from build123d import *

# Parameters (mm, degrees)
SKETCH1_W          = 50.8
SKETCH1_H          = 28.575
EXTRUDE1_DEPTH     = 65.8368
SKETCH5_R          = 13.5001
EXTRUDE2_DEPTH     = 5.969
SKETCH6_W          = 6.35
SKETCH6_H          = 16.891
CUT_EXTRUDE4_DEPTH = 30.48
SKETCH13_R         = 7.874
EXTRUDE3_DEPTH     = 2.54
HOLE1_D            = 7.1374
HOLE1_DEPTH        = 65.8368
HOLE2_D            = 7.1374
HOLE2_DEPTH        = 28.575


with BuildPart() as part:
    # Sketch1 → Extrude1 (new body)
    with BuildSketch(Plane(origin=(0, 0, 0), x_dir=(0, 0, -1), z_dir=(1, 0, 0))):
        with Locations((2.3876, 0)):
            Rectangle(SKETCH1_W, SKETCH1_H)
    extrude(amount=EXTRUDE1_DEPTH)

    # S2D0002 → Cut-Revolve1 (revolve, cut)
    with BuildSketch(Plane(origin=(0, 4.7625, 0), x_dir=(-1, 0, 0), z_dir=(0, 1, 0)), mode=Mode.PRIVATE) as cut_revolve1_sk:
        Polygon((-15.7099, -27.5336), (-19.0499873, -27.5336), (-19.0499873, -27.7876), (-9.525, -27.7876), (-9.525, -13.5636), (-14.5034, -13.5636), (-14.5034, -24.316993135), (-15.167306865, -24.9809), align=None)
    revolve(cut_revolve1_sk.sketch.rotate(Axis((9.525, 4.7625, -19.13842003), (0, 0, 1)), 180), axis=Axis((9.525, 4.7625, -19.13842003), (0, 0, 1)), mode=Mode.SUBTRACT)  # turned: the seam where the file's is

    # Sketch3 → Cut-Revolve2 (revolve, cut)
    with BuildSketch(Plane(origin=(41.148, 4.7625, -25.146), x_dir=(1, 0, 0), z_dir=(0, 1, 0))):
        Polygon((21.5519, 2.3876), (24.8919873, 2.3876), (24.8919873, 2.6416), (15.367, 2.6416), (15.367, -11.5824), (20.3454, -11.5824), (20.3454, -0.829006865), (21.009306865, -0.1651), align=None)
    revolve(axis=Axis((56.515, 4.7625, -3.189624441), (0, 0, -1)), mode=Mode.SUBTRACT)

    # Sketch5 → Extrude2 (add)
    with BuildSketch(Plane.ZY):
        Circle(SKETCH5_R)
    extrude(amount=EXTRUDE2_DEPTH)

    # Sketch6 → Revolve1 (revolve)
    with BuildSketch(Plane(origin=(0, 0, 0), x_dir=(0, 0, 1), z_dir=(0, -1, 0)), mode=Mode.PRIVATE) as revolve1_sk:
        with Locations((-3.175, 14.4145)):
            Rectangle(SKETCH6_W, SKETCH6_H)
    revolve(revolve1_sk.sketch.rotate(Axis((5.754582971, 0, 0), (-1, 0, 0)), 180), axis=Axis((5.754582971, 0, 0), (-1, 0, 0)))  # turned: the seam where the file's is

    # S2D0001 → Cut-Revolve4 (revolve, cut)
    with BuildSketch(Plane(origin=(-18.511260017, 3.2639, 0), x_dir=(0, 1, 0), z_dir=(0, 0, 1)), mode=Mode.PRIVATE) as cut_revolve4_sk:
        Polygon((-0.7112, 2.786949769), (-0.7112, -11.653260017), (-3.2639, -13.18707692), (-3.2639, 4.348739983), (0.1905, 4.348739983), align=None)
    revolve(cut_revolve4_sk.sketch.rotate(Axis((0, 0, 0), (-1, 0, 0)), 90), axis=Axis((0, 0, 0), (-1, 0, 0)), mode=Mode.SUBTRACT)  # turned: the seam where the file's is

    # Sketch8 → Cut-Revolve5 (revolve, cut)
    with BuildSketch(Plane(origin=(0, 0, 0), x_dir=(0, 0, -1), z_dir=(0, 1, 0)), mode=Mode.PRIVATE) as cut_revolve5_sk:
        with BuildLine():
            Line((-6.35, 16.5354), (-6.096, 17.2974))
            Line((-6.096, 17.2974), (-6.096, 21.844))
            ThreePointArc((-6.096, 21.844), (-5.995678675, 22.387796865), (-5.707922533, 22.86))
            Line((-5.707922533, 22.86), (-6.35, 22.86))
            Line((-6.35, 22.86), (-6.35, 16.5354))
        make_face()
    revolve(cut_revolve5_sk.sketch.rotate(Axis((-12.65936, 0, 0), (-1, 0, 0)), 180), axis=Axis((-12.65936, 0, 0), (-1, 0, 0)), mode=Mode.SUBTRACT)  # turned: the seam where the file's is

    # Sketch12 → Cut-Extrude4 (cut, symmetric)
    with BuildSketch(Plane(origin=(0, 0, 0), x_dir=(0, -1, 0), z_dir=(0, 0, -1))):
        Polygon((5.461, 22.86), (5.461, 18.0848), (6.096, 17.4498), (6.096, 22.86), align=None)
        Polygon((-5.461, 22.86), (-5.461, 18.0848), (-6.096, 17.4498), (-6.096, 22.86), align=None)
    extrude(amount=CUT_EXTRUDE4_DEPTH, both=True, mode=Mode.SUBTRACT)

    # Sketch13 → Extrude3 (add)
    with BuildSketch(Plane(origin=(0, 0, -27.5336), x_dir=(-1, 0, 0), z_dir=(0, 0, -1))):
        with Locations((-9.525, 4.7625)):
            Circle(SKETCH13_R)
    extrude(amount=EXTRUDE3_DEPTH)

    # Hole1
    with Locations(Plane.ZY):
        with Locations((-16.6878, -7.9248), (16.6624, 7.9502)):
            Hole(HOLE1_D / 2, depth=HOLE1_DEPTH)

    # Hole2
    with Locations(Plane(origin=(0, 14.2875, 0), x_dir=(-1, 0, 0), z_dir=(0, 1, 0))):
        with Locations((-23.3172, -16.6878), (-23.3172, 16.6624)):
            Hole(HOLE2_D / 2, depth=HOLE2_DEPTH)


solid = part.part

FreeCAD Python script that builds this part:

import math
import FreeCAD as App
import Part
import Sketcher
Q = App.Units.Quantity


def add_polygon(sketch, points):
    """Adds a closed chain of lines whose ends are joined by coincident constraints."""
    first, n = sketch.GeometryCount, len(points)
    for a, b in zip(points, points[1:] + points[:1]):
        sketch.addGeometry(Part.LineSegment(App.Vector(*a, 0), App.Vector(*b, 0)), False)
    for i in range(n):
        sketch.addConstraint(Sketcher.Constraint("Coincident", first + i, 2, first + (i + 1) % n, 1))

doc = App.newDocument("Part")
body = doc.addObject("PartDesign::Body", "Body")

# Sketch on YZ plane
sketch1 = body.newObject("Sketcher::SketchObject", "Sketch")
sketch1.AttachmentSupport = (doc.getObject("YZ_Plane"), [""])
sketch1.MapMode = "FlatFace"
add_polygon(sketch1, [(14.2875, 23.0124), (-14.2875, 23.0124), (-14.2875, -27.7876), (14.2875, -27.7876)])  # lines 0-3
sketch1.addConstraint([
    Sketcher.Constraint("Horizontal", 0),
    Sketcher.Constraint("Vertical", 1),
    Sketcher.Constraint("Horizontal", 2),
    Sketcher.Constraint("Vertical", 3),
    Sketcher.Constraint("DistanceY", 1, 2, 1, 1, Q("2 in")),
    Sketcher.Constraint("DistanceX", 0, 2, 0, 1, Q("1.125 in")),
    Sketcher.Constraint("DistanceX", 0, 2, -1, 1, Q("0.5625 in")),
    Sketcher.Constraint("DistanceY", -1, 1, 0, 2, Q("0.906 in")),
])
pad1 = body.newObject("PartDesign::Pad", "Pad")
pad1.Profile = sketch1
pad1.Length = Q("2.592 in")

# Sketch on XZ plane
sketch2 = body.newObject("Sketcher::SketchObject", "Sketch001")
sketch2.AttachmentSupport = (doc.getObject("XZ_Plane"), [""])
sketch2.MapMode = "FlatFace"
sketch2.AttachmentOffset = App.Placement(App.Vector(0, 0, -0.1875 * 25.4), App.Rotation())
add_polygon(sketch2, [(15.7099, -27.5336), (19.049987, -27.5336), (19.049987, -27.7876), (9.525, -27.7876), (9.525, -13.5636), (14.5034, -13.5636), (14.5034, -24.316993), (15.167307, -24.9809)])  # lines 0-7
sketch2.addGeometry(Part.LineSegment(App.Vector(9.525, -27.7876, 0), App.Vector(9.525, -13.5636, 0)), True)  # axis
sketch2.addConstraint([
    Sketcher.Constraint("Horizontal", 0),
    Sketcher.Constraint("Vertical", 1),
    Sketcher.Constraint("Horizontal", 2),
    Sketcher.Constraint("Vertical", 3),
    Sketcher.Constraint("Horizontal", 4),
    Sketcher.Constraint("Vertical", 5),
    Sketcher.Constraint("Vertical", 8),
    Sketcher.Constraint("Coincident", 8, 1, 2, 2),
    Sketcher.Constraint("Horizontal", 4, 2, 8, 2),
    Sketcher.Constraint("Angle", 6, Q("-45 deg")),
    Sketcher.Constraint("Angle", 7, Q("-78 deg")),
    Sketcher.Constraint("DistanceY", 1, 2, 1, 1, Q("0.01 in")),
    Sketcher.Constraint("DistanceY", 3, 1, 3, 2, Q("0.56 in")),
    Sketcher.Constraint("DistanceX", 4, 1, 4, 2, Q("0.196 in")),
    Sketcher.Constraint("DistanceY", 0, 2, -1, 1, Q("1.084 in")),
    Sketcher.Constraint("DistanceX", -1, 1, 2, 2, Q("0.375 in")),
    Sketcher.Constraint("DistanceY", 6, 2, -1, 1, Q("0.9835 in")),
    Sketcher.Constraint("DistanceX", -1, 1, 7, 2, Q("0.6185 in")),
    Sketcher.Constraint("DistanceX", 0, 1, 0, 2, Q("3.340087 mm")),
])
groove = body.newObject("PartDesign::Groove", "Groove")
groove.Profile = sketch2
groove.ReferenceAxis = (sketch2, ["Axis0"])
groove.Angle = 360

# Sketch on XZ plane
sketch3 = body.newObject("Sketcher::SketchObject", "Sketch002")
sketch3.AttachmentSupport = (doc.getObject("XZ_Plane"), [""])
sketch3.MapMode = "FlatFace"
sketch3.AttachmentOffset = App.Placement(App.Vector(0, 0, -0.1875 * 25.4), App.Rotation())
add_polygon(sketch3, [(62.6999, -27.5336), (66.039987, -27.5336), (66.039987, -27.7876), (56.515, -27.7876), (56.515, -13.5636), (61.4934, -13.5636), (61.4934, -24.316993), (62.157307, -24.9809)])  # lines 0-7
sketch3.addGeometry(Part.LineSegment(App.Vector(56.515, -13.5636, 0), App.Vector(56.515, -27.7876, 0)), True)  # axis
sketch3.addConstraint([
    Sketcher.Constraint("Horizontal", 0),
    Sketcher.Constraint("Vertical", 1),
    Sketcher.Constraint("Horizontal", 2),
    Sketcher.Constraint("Vertical", 3),
    Sketcher.Constraint("Horizontal", 4),
    Sketcher.Constraint("Vertical", 5),
    Sketcher.Constraint("Vertical", 8),
    Sketcher.Constraint("Coincident", 8, 1, 3, 2),
    Sketcher.Constraint("Horizontal", 1, 2, 8, 2),
    Sketcher.Constraint("Angle", 6, Q("-45 deg")),
    Sketcher.Constraint("Angle", 7, Q("-78 deg")),
    Sketcher.Constraint("DistanceY", 1, 2, 1, 1, Q("0.01 in")),
    Sketcher.Constraint("DistanceY", 3, 1, 3, 2, Q("0.56 in")),
    Sketcher.Constraint("DistanceX", 4, 1, 4, 2, Q("0.196 in")),
    Sketcher.Constraint("DistanceY", 0, 2, -1, 1, Q("1.084 in")),
    Sketcher.Constraint("DistanceX", -1, 1, 2, 2, Q("2.225 in")),
    Sketcher.Constraint("DistanceY", 6, 2, -1, 1, Q("0.9835 in")),
    Sketcher.Constraint("DistanceX", -1, 1, 7, 2, Q("2.4685 in")),
    Sketcher.Constraint("DistanceX", 0, 1, 0, 2, Q("3.340087 mm")),
])
groove2 = body.newObject("PartDesign::Groove", "Groove001")
groove2.Profile = sketch3
groove2.ReferenceAxis = (sketch3, ["Axis0"])
groove2.Angle = 360

# Sketch on YZ plane
sketch4 = body.newObject("Sketcher::SketchObject", "Sketch003")
sketch4.AttachmentSupport = (doc.getObject("YZ_Plane"), [""])
sketch4.MapMode = "FlatFace"
sketch4.addGeometry(Part.Circle(App.Vector(0, 0, 0), App.Vector(0, 0, 1), 13.5001), False)
sketch4.addConstraint([
    Sketcher.Constraint("Coincident", 0, 3, -1, 1),
    Sketcher.Constraint("Diameter", 0, Q("1.063 in")),
])
pad2 = body.newObject("PartDesign::Pad", "Pad001")
pad2.Profile = sketch4
pad2.Length = Q("0.235 in")
pad2.Reversed = True

# Sketch on XZ plane
sketch5 = body.newObject("Sketcher::SketchObject", "Sketch004")
sketch5.AttachmentSupport = (doc.getObject("XZ_Plane"), [""])
sketch5.MapMode = "FlatFace"
add_polygon(sketch5, [(-22.86, -6.35), (-5.969, -6.35), (-5.969, 0), (-22.86, 0)])  # lines 0-3
sketch5.addConstraint([
    Sketcher.Constraint("Horizontal", 0),
    Sketcher.Constraint("Vertical", 1),
    Sketcher.Constraint("Horizontal", 2),
    Sketcher.Constraint("Vertical", 3),
    Sketcher.Constraint("PointOnObject", 1, 2, -1),
    Sketcher.Constraint("DistanceY", 1, 1, 1, 2, Q("0.25 in")),
    Sketcher.Constraint("DistanceX", 2, 2, -1, 1, Q("0.9 in")),
    Sketcher.Constraint("DistanceX", 0, 1, 0, 2, Q("0.665 in")),
])
revolution = body.newObject("PartDesign::Revolution", "Revolution")
revolution.Profile = sketch5
revolution.ReferenceAxis = (sketch5, ["H_Axis"])
revolution.Angle = 360

# Sketch on XY plane
sketch6 = body.newObject("Sketcher::SketchObject", "Sketch005")
sketch6.AttachmentSupport = (doc.getObject("XY_Plane"), [""])
sketch6.MapMode = "FlatFace"
add_polygon(sketch6, [(-6.858, 2.5527), (-21.29821, 2.5527), (-22.86, 3.4544), (-22.86, 0), (-5.324183, 0)])  # lines 0-4
sketch6.addConstraint([
    Sketcher.Constraint("Horizontal", 0),
    Sketcher.Constraint("Vertical", 2),
    Sketcher.Constraint("Horizontal", 3),
    Sketcher.Constraint("PointOnObject", 2, 2, -1),
    Sketcher.Constraint("Angle", 1, Q("150 deg")),
    Sketcher.Constraint("Angle", 4, Q("121 deg")),
    Sketcher.Constraint("DistanceX", 1, 2, -1, 1, Q("0.9 in")),
    Sketcher.Constraint("DistanceY", 2, 2, 2, 1, Q("0.136 in")),
    Sketcher.Constraint("DistanceX", 4, 2, -1, 1, Q("0.27 in")),
    Sketcher.Constraint("Distance", 1, Q("0.071 in")),
])
groove3 = body.newObject("PartDesign::Groove", "Groove002")
groove3.Profile = sketch6
groove3.ReferenceAxis = (sketch6, ["H_Axis"])
groove3.Angle = 360

# Sketch on XZ plane
sketch7 = body.newObject("Sketcher::SketchObject", "Sketch006")
sketch7.AttachmentSupport = (doc.getObject("XZ_Plane"), [""])
sketch7.MapMode = "FlatFace"
sketch7.addGeometry([
    Part.LineSegment(App.Vector(-16.5354, 6.35, 0), App.Vector(-17.2974, 6.096, 0)),  # 0
    Part.LineSegment(App.Vector(-17.2974, 6.096, 0), App.Vector(-21.844, 6.096, 0)),  # 1
    Part.ArcOfCircle(Part.Circle(App.Vector(-21.844, 4.572, 0), App.Vector(0, 0, 1), 1.524), math.radians(90), math.radians(131.810315)),  # 2
    Part.LineSegment(App.Vector(-22.86, 5.707923, 0), App.Vector(-22.86, 6.35, 0)),  # 3
    Part.LineSegment(App.Vector(-22.86, 6.35, 0), App.Vector(-16.5354, 6.35, 0)),  # 4
], False)
sketch7.addConstraint([
    Sketcher.Constraint("Coincident", 0, 2, 1, 1),
    Sketcher.Constraint("Tangent", 1, 2, 2, 1),
    Sketcher.Constraint("Coincident", 2, 2, 3, 1),
    Sketcher.Constraint("Coincident", 3, 2, 4, 1),
    Sketcher.Constraint("Coincident", 4, 2, 0, 1),
    Sketcher.Constraint("Horizontal", 1),
    Sketcher.Constraint("Vertical", 3),
    Sketcher.Constraint("Horizontal", 4),
    Sketcher.Constraint("Radius", 2, Q("0.06 in")),
    Sketcher.Constraint("DistanceX", 2, 2, -1, 1, Q("0.9 in")),
    Sketcher.Constraint("DistanceX", 1, 2, 1, 1, Q("0.179 in")),
    Sketcher.Constraint("DistanceX", 4, 1, 4, 2, Q("0.249 in")),
    Sketcher.Constraint("DistanceX", 2, 3, -1, 1, Q("0.86 in")),
    Sketcher.Constraint("DistanceY", -1, 1, 2, 3, Q("0.18 in")),
    Sketcher.Constraint("DistanceY", -1, 1, 3, 2, Q("0.25 in")),
])
groove4 = body.newObject("PartDesign::Groove", "Groove003")
groove4.Profile = sketch7
groove4.ReferenceAxis = (sketch7, ["H_Axis"])
groove4.Angle = 360

# Sketch on XY plane
sketch8 = body.newObject("Sketcher::SketchObject", "Sketch007")
sketch8.AttachmentSupport = (doc.getObject("XY_Plane"), [""])
sketch8.MapMode = "FlatFace"
add_polygon(sketch8, [(-22.86, -5.461), (-18.0848, -5.461), (-17.4498, -6.096), (-22.86, -6.096)])  # lines 0-3
add_polygon(sketch8, [(-18.0848, 5.461), (-22.86, 5.461), (-22.86, 6.096), (-17.4498, 6.096)])  # lines 4-7
sketch8.addConstraint([
    Sketcher.Constraint("Horizontal", 0),
    Sketcher.Constraint("Horizontal", 2),
    Sketcher.Constraint("Vertical", 3),
    Sketcher.Constraint("Horizontal", 4),
    Sketcher.Constraint("Vertical", 5),
    Sketcher.Constraint("Horizontal", 6),
    Sketcher.Constraint("Symmetric", 3, 2, 4, 2, -1),
    Sketcher.Constraint("Symmetric", 1, 2, 6, 2, -1),
    Sketcher.Constraint("Perpendicular", 1, 7),
    Sketcher.Constraint("Vertical", 0, 2, 7, 2),
    Sketcher.Constraint("DistanceX", 2, 2, -1, 1, Q("0.9 in")),
    Sketcher.Constraint("DistanceX", 0, 1, 0, 2, Q("0.188 in")),
    Sketcher.Constraint("DistanceX", 2, 2, 2, 1, Q("0.213 in")),
    Sketcher.Constraint("DistanceY", 1, 2, -1, 1, Q("0.24 in")),
])
pocket1 = body.newObject("PartDesign::Pocket", "Pocket")
pocket1.Profile = sketch8
pocket1.Length = Q("2.4 in")
pocket1.Midplane = True

# Sketch on XY plane
sketch9 = body.newObject("Sketcher::SketchObject", "Sketch008")
sketch9.AttachmentSupport = (doc.getObject("XY_Plane"), [""])
sketch9.MapMode = "FlatFace"
sketch9.AttachmentOffset = App.Placement(App.Vector(0, 0, -1.084 * 25.4), App.Rotation())
sketch9.addGeometry(Part.Circle(App.Vector(9.525, 4.7625, 0), App.Vector(0, 0, 1), 7.874), False)
sketch9.addConstraint([
    Sketcher.Constraint("Diameter", 0, Q("0.62 in")),
    Sketcher.Constraint("DistanceX", -1, 1, 0, 3, Q("0.375 in")),
    Sketcher.Constraint("DistanceY", -1, 1, 0, 3, Q("0.1875 in")),
])
pad3 = body.newObject("PartDesign::Pad", "Pad002")
pad3.Profile = sketch9
pad3.Length = Q("0.1 in")
pad3.Reversed = True

# Sketch on YZ plane
sketch10 = body.newObject("Sketcher::SketchObject", "Sketch009")
sketch10.AttachmentSupport = (doc.getObject("YZ_Plane"), [""])
sketch10.MapMode = "FlatFace"
sketch10.addGeometry([
    Part.Circle(App.Vector(-7.9248, -16.6878, 0), App.Vector(0, 0, 1), 3.5687),
    Part.Circle(App.Vector(7.9502, 16.6624, 0), App.Vector(0, 0, 1), 3.5687),
], False)
sketch10.addConstraint([
    Sketcher.Constraint("Equal", 0, 1),
    Sketcher.Constraint("Diameter", 0, Q("0.281 in")),
    Sketcher.Constraint("DistanceX", 0, 3, -1, 1, Q("0.312 in")),
    Sketcher.Constraint("DistanceY", 0, 3, -1, 1, Q("0.657 in")),
    Sketcher.Constraint("DistanceX", -1, 1, 1, 3, Q("0.313 in")),
    Sketcher.Constraint("DistanceY", -1, 1, 1, 3, Q("0.656 in")),
])
doc.recompute()
hole = body.newObject("PartDesign::Hole", "Hole")
hole.Profile = sketch10
hole.ThreadType = "None"
hole.Diameter = Q("0.281 in")
hole.DepthType = "Dimension"
hole.Depth = Q("2.592 in")
hole.DrillPoint = "Flat"
hole.Reversed = True

# Sketch on XZ plane
sketch11 = body.newObject("Sketcher::SketchObject", "Sketch010")
sketch11.AttachmentSupport = (doc.getObject("XZ_Plane"), [""])
sketch11.MapMode = "FlatFace"
sketch11.AttachmentOffset = App.Placement(App.Vector(0, 0, -0.5625 * 25.4), App.Rotation())
sketch11.addGeometry([
    Part.Circle(App.Vector(23.3172, -16.6878, 0), App.Vector(0, 0, 1), 3.5687),
    Part.Circle(App.Vector(23.3172, 16.6624, 0), App.Vector(0, 0, 1), 3.5687),
], False)
sketch11.addConstraint([
    Sketcher.Constraint("Equal", 0, 1),
    Sketcher.Constraint("Vertical", 0, 3, 1, 3),
    Sketcher.Constraint("Diameter", 0, Q("0.281 in")),
    Sketcher.Constraint("DistanceX", -1, 1, 0, 3, Q("0.918 in")),
    Sketcher.Constraint("DistanceY", 0, 3, -1, 1, Q("0.657 in")),
    Sketcher.Constraint("DistanceY", -1, 1, 1, 3, Q("0.656 in")),
])
doc.recompute()
hole2 = body.newObject("PartDesign::Hole", "Hole001")
hole2.Profile = sketch11
hole2.ThreadType = "None"
hole2.Diameter = Q("0.281 in")
hole2.DepthType = "Dimension"
hole2.Depth = Q("1.125 in")
hole2.DrillPoint = "Flat"
hole2.Reversed = True

doc.recompute()
